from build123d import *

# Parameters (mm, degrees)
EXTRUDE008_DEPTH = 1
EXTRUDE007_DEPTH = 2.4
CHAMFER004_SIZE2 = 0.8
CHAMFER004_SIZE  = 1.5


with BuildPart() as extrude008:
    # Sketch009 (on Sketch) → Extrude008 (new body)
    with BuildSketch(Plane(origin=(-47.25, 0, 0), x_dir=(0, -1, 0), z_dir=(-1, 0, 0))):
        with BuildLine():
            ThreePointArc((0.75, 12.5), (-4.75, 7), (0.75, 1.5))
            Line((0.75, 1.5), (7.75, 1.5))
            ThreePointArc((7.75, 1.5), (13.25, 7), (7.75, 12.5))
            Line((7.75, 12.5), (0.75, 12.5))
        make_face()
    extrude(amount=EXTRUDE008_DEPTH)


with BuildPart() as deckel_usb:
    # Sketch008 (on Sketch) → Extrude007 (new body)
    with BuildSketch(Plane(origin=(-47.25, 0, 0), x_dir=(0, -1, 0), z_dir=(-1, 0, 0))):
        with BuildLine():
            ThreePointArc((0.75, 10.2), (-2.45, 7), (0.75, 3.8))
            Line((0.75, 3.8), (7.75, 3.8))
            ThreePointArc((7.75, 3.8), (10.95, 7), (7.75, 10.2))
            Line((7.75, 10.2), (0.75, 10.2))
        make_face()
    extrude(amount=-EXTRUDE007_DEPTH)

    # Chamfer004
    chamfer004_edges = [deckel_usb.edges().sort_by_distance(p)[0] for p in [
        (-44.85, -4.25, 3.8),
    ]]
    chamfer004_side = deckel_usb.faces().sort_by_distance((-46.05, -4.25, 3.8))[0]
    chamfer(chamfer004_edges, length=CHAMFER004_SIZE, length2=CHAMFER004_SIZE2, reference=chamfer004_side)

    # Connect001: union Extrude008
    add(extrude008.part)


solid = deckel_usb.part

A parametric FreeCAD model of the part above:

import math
import FreeCAD as App
import Part
import Sketcher


def edges_at(feature, points):
    """Names of the edges that pass closest to the given points."""
    edges = feature.Shape.Edges
    near = lambda p: min(range(len(edges)), key=lambda i: edges[i].distToShape(Part.Vertex(*p))[0])
    return sorted({f"Edge{near(p) + 1}" for p in points})

doc = App.newDocument("Part")
body = doc.addObject("PartDesign::Body", "Body")

# Sketch on YZ plane
sketch1 = body.newObject("Sketcher::SketchObject", "Sketch")
sketch1.AttachmentSupport = (doc.getObject("YZ_Plane"), [""])
sketch1.MapMode = "FlatFace"
sketch1.AttachmentOffset = App.Placement(App.Vector(0, 0, -47.25), App.Rotation())
sketch1.addGeometry([
    Part.ArcOfCircle(Part.Circle(App.Vector(-1, 7, 0), App.Vector(0, 0, 1), 6), math.radians(-90), math.radians(90)),
    Part.LineSegment(App.Vector(-1, 2, 0), App.Vector(-8, 2, 0)),
    Part.ArcOfCircle(Part.Circle(App.Vector(-8, 7, 0), App.Vector(0, 0, 1), 6), math.radians(90), math.radians(270)),
    Part.LineSegment(App.Vector(-8, 12, 0), App.Vector(-1, 12, 0)),
], False)
sketch1.addConstraint([
    Sketcher.Constraint("Tangent", 0, 1, 1, 1),
    Sketcher.Constraint("Tangent", 1, 2, 2, 2),
    Sketcher.Constraint("Tangent", 2, 1, 3, 1),
    Sketcher.Constraint("Tangent", 3, 2, 0, 2),
    Sketcher.Constraint("Horizontal", 1),
    Sketcher.Constraint("Horizontal", 3),
    Sketcher.Constraint("Radius", 0, 5.5),
    Sketcher.Constraint("DistanceX", 1, 2, 1, 1, 7.0),
    Sketcher.Constraint("DistanceY", -1, 1, 0, 3, 7.0),
    Sketcher.Constraint("DistanceX", 0, 3, -1, 1, 0.75),
])
pad1 = body.newObject("PartDesign::Pad", "Pad")
pad1.Profile = sketch1
pad1.Length = 1
pad1.Reversed = True
body2 = doc.addObject("PartDesign::Body", "Body001")

# Sketch on YZ plane
sketch2 = body2.newObject("Sketcher::SketchObject", "Sketch001")
sketch2.AttachmentSupport = (doc.getObject("YZ_Plane001"), [""])
sketch2.MapMode = "FlatFace"
sketch2.AttachmentOffset = App.Placement(App.Vector(0, 0, -47.25), App.Rotation())
sketch2.addGeometry([
    Part.ArcOfCircle(Part.Circle(App.Vector(-0.8, 7, 0), App.Vector(0, 0, 1), 3.2), math.radians(-90), math.radians(90)),
    Part.LineSegment(App.Vector(-0.8, 3.8, 0), App.Vector(-7.8, 3.8, 0)),
    Part.ArcOfCircle(Part.Circle(App.Vector(-7.8, 7, 0), App.Vector(0, 0, 1), 3.2), math.radians(90), math.radians(270)),
    Part.LineSegment(App.Vector(-7.8, 10.2, 0), App.Vector(-0.8, 10.2, 0)),
], False)
sketch2.addConstraint([
    Sketcher.Constraint("Tangent", 0, 1, 1, 1),
    Sketcher.Constraint("Tangent", 1, 2, 2, 2),
    Sketcher.Constraint("Tangent", 2, 1, 3, 1),
    Sketcher.Constraint("Tangent", 3, 2, 0, 2),
    Sketcher.Constraint("Horizontal", 1),
    Sketcher.Constraint("Horizontal", 3),
    Sketcher.Constraint("Radius", 0, 3.2),
    Sketcher.Constraint("DistanceX", 1, 2, 1, 1, 7.0),
    Sketcher.Constraint("DistanceY", -1, 1, 0, 3, 7.0),
    Sketcher.Constraint("DistanceX", 0, 3, -1, 1, 0.75),
])
pad2 = body2.newObject("PartDesign::Pad", "Pad001")
pad2.Profile = sketch2
pad2.Length = 2.4
doc.recompute()

chamfer = body2.newObject("PartDesign::Chamfer", "Chamfer")
chamfer.Base = (pad2, edges_at(pad2, [(-44.85, -4.25, 3.8)]))
chamfer.ChamferType = "Two distances"
chamfer.Size = 1.5
chamfer.Size2 = 0.8
doc.recompute()

boolean = body2.newObject("PartDesign::Boolean", "Boolean")
boolean.Type = "Fuse"
boolean.addObjects([body])

doc.recompute()
